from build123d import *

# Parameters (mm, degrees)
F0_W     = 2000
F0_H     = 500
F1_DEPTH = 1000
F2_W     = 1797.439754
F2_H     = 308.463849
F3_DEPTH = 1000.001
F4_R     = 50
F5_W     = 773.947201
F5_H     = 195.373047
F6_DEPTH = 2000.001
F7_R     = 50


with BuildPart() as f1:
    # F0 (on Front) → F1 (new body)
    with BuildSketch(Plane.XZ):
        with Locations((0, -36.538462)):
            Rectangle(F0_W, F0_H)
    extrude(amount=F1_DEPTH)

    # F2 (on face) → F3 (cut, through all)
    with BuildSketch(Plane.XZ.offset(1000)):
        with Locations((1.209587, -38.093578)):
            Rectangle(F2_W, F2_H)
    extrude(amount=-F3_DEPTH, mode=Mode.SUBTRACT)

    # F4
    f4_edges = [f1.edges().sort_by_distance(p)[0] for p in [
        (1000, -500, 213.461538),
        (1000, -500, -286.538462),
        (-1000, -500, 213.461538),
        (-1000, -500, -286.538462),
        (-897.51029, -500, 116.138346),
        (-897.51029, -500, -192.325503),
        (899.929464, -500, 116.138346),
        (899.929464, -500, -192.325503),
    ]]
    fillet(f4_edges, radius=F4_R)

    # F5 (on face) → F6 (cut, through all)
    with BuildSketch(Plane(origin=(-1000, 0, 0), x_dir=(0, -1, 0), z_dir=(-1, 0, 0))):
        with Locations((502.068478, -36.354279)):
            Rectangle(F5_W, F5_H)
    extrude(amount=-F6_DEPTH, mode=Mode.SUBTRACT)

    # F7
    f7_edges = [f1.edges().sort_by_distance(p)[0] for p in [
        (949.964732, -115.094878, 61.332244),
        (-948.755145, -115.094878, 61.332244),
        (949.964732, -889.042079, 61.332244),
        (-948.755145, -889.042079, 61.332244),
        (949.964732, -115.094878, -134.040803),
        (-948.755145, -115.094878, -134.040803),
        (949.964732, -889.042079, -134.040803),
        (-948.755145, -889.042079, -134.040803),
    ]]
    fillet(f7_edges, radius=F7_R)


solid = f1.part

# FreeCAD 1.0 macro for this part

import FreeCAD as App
import Part
import Sketcher

V = App.Vector
Q = App.Units.Quantity


def edges_at(feature, points):
    """Names of the edges that pass closest to the given points."""
    edges = feature.Shape.Edges
    near = lambda p: min(range(len(edges)), key=lambda i: edges[i].distToShape(Part.Vertex(*p))[0])
    return sorted({f"Edge{near(p) + 1}" for p in points})

doc = App.newDocument("Part")
body = doc.addObject("PartDesign::Body", "Body")

# Sketch on XZ plane
sketch1 = doc.addObject("Sketcher::SketchObject", "Sketch")
body.addObject(sketch1)
sketch1.AttachmentSupport = (doc.XZ_Plane, [""])
sketch1.MapMode = "FlatFace"
sketch1.addGeometry(Part.LineSegment(V(-1000, 213, 0), V(-1000, -287, 0)), False)
sketch1.addGeometry(Part.LineSegment(V(-1000, -287, 0), V(1000, -287, 0)), False)
sketch1.addGeometry(Part.LineSegment(V(1000, -287, 0), V(1000, 213, 0)), False)
sketch1.addGeometry(Part.LineSegment(V(1000, 213, 0), V(-1000, 213, 0)), False)
sketch1.addConstraint(Sketcher.Constraint("Coincident", 0, 2, 1, 1))
sketch1.addConstraint(Sketcher.Constraint("Coincident", 1, 2, 2, 1))
sketch1.addConstraint(Sketcher.Constraint("Coincident", 2, 2, 3, 1))
sketch1.addConstraint(Sketcher.Constraint("Coincident", 3, 2, 0, 1))
sketch1.addConstraint(Sketcher.Constraint("Vertical", 0))
sketch1.addConstraint(Sketcher.Constraint("Horizontal", 1))
sketch1.addConstraint(Sketcher.Constraint("Vertical", 2))
sketch1.addConstraint(Sketcher.Constraint("Horizontal", 3))
sketch1.addConstraint(Sketcher.Constraint("DistanceX", 1, 1, 1, 2, Q("2000 mm")))
sketch1.addConstraint(Sketcher.Constraint("DistanceY", 0, 2, 0, 1, Q("500 mm")))
sketch1.addConstraint(Sketcher.Constraint("DistanceX", 0, 2, -1, 1, Q("1000 mm")))
sketch1.addConstraint(Sketcher.Constraint("DistanceY", 0, 2, -1, 1, Q("286.538462 mm")))
pad1 = doc.addObject("PartDesign::Pad", "Pad")
body.addObject(pad1)
pad1.Profile = sketch1
pad1.Length = 1000

# Sketch on XZ plane
sketch2 = doc.addObject("Sketcher::SketchObject", "Sketch001")
body.addObject(sketch2)
sketch2.AttachmentSupport = (doc.XZ_Plane, [""])
sketch2.MapMode = "FlatFace"
sketch2.AttachmentOffset = App.Placement(V(0, 0, 1000), App.Rotation())
sketch2.addGeometry(Part.LineSegment(V(-898, 116, 0), V(-898, -192, 0)), False)
sketch2.addGeometry(Part.LineSegment(V(-898, -192, 0), V(900, -192, 0)), False)
sketch2.addGeometry(Part.LineSegment(V(900, -192, 0), V(900, 116, 0)), False)
sketch2.addGeometry(Part.LineSegment(V(900, 116, 0), V(-898, 116, 0)), False)
sketch2.addConstraint(Sketcher.Constraint("Coincident", 0, 2, 1, 1))
sketch2.addConstraint(Sketcher.Constraint("Coincident", 1, 2, 2, 1))
sketch2.addConstraint(Sketcher.Constraint("Coincident", 2, 2, 3, 1))
sketch2.addConstraint(Sketcher.Constraint("Coincident", 3, 2, 0, 1))
sketch2.addConstraint(Sketcher.Constraint("Vertical", 0))
sketch2.addConstraint(Sketcher.Constraint("Horizontal", 1))
sketch2.addConstraint(Sketcher.Constraint("Vertical", 2))
sketch2.addConstraint(Sketcher.Constraint("Horizontal", 3))
sketch2.addConstraint(Sketcher.Constraint("DistanceY", 0, 2, 0, 1, Q("308.463849 mm")))
sketch2.addConstraint(Sketcher.Constraint("DistanceX", 1, 1, 1, 2, Q("1797.439754 mm")))
sketch2.addConstraint(Sketcher.Constraint("DistanceX", 0, 2, -1, 1, Q("897.51029 mm")))
sketch2.addConstraint(Sketcher.Constraint("DistanceY", 0, 2, -1, 1, Q("192.325502 mm")))
pocket1 = doc.addObject("PartDesign::Pocket", "Pocket")
body.addObject(pocket1)
pocket1.Profile = sketch2
pocket1.Type = "ThroughAll"
doc.recompute()

fillet = doc.addObject("PartDesign::Fillet", "Fillet")
body.addObject(fillet)
fillet.Base = (pocket1, edges_at(pocket1, [
    (1000, -500, 213.462),
    (1000, -500, -286.538),
    (-1000, -500, 213.462),
    (-1000, -500, -286.538),
    (-897.51, -500, 116.138),
    (-897.51, -500, -192.326),
    (899.929, -500, 116.138),
    (899.929, -500, -192.326),
]))
fillet.Radius = 50

# Sketch on YZ plane
sketch3 = doc.addObject("Sketcher::SketchObject", "Sketch002")
body.addObject(sketch3)
sketch3.AttachmentSupport = (doc.YZ_Plane, [""])
sketch3.MapMode = "FlatFace"
sketch3.AttachmentOffset = App.Placement(V(0, 0, -1000), App.Rotation())
sketch3.addGeometry(Part.LineSegment(V(-115, 61, 0), V(-115, -134, 0)), False)
sketch3.addGeometry(Part.LineSegment(V(-115, -134, 0), V(-889, -134, 0)), False)
sketch3.addGeometry(Part.LineSegment(V(-889, -134, 0), V(-889, 61, 0)), False)
sketch3.addGeometry(Part.LineSegment(V(-889, 61, 0), V(-115, 61, 0)), False)
sketch3.addConstraint(Sketcher.Constraint("Coincident", 0, 2, 1, 1))
sketch3.addConstraint(Sketcher.Constraint("Coincident", 1, 2, 2, 1))
sketch3.addConstraint(Sketcher.Constraint("Coincident", 2, 2, 3, 1))
sketch3.addConstraint(Sketcher.Constraint("Coincident", 3, 2, 0, 1))
sketch3.addConstraint(Sketcher.Constraint("Vertical", 0))
sketch3.addConstraint(Sketcher.Constraint("Horizontal", 1))
sketch3.addConstraint(Sketcher.Constraint("Vertical", 2))
sketch3.addConstraint(Sketcher.Constraint("Horizontal", 3))
sketch3.addConstraint(Sketcher.Constraint("DistanceX", 1, 2, 1, 1, Q("773.947201 mm")))
sketch3.addConstraint(Sketcher.Constraint("DistanceY", 0, 2, 0, 1, Q("195.373047 mm")))
sketch3.addConstraint(Sketcher.Constraint("DistanceX", 1, 2, -1, 1, Q("889.042079 mm")))
sketch3.addConstraint(Sketcher.Constraint("DistanceY", 0, 2, -1, 1, Q("134.040803 mm")))
pocket2 = doc.addObject("PartDesign::Pocket", "Pocket001")
body.addObject(pocket2)
pocket2.Profile = sketch3
pocket2.Type = "ThroughAll"
pocket2.Reversed = True
doc.recompute()

fillet2 = doc.addObject("PartDesign::Fillet", "Fillet001")
body.addObject(fillet2)
fillet2.Base = (pocket2, edges_at(pocket2, [
    (949.965, -115.095, 61.332),
    (-948.755, -115.095, 61.332),
    (949.965, -889.042, 61.332),
    (-948.755, -889.042, 61.332),
    (949.965, -115.095, -134.041),
    (-948.755, -115.095, -134.041),
    (949.965, -889.042, -134.041),
    (-948.755, -889.042, -134.041),
]))
fillet2.Radius = 50

doc.recompute()
